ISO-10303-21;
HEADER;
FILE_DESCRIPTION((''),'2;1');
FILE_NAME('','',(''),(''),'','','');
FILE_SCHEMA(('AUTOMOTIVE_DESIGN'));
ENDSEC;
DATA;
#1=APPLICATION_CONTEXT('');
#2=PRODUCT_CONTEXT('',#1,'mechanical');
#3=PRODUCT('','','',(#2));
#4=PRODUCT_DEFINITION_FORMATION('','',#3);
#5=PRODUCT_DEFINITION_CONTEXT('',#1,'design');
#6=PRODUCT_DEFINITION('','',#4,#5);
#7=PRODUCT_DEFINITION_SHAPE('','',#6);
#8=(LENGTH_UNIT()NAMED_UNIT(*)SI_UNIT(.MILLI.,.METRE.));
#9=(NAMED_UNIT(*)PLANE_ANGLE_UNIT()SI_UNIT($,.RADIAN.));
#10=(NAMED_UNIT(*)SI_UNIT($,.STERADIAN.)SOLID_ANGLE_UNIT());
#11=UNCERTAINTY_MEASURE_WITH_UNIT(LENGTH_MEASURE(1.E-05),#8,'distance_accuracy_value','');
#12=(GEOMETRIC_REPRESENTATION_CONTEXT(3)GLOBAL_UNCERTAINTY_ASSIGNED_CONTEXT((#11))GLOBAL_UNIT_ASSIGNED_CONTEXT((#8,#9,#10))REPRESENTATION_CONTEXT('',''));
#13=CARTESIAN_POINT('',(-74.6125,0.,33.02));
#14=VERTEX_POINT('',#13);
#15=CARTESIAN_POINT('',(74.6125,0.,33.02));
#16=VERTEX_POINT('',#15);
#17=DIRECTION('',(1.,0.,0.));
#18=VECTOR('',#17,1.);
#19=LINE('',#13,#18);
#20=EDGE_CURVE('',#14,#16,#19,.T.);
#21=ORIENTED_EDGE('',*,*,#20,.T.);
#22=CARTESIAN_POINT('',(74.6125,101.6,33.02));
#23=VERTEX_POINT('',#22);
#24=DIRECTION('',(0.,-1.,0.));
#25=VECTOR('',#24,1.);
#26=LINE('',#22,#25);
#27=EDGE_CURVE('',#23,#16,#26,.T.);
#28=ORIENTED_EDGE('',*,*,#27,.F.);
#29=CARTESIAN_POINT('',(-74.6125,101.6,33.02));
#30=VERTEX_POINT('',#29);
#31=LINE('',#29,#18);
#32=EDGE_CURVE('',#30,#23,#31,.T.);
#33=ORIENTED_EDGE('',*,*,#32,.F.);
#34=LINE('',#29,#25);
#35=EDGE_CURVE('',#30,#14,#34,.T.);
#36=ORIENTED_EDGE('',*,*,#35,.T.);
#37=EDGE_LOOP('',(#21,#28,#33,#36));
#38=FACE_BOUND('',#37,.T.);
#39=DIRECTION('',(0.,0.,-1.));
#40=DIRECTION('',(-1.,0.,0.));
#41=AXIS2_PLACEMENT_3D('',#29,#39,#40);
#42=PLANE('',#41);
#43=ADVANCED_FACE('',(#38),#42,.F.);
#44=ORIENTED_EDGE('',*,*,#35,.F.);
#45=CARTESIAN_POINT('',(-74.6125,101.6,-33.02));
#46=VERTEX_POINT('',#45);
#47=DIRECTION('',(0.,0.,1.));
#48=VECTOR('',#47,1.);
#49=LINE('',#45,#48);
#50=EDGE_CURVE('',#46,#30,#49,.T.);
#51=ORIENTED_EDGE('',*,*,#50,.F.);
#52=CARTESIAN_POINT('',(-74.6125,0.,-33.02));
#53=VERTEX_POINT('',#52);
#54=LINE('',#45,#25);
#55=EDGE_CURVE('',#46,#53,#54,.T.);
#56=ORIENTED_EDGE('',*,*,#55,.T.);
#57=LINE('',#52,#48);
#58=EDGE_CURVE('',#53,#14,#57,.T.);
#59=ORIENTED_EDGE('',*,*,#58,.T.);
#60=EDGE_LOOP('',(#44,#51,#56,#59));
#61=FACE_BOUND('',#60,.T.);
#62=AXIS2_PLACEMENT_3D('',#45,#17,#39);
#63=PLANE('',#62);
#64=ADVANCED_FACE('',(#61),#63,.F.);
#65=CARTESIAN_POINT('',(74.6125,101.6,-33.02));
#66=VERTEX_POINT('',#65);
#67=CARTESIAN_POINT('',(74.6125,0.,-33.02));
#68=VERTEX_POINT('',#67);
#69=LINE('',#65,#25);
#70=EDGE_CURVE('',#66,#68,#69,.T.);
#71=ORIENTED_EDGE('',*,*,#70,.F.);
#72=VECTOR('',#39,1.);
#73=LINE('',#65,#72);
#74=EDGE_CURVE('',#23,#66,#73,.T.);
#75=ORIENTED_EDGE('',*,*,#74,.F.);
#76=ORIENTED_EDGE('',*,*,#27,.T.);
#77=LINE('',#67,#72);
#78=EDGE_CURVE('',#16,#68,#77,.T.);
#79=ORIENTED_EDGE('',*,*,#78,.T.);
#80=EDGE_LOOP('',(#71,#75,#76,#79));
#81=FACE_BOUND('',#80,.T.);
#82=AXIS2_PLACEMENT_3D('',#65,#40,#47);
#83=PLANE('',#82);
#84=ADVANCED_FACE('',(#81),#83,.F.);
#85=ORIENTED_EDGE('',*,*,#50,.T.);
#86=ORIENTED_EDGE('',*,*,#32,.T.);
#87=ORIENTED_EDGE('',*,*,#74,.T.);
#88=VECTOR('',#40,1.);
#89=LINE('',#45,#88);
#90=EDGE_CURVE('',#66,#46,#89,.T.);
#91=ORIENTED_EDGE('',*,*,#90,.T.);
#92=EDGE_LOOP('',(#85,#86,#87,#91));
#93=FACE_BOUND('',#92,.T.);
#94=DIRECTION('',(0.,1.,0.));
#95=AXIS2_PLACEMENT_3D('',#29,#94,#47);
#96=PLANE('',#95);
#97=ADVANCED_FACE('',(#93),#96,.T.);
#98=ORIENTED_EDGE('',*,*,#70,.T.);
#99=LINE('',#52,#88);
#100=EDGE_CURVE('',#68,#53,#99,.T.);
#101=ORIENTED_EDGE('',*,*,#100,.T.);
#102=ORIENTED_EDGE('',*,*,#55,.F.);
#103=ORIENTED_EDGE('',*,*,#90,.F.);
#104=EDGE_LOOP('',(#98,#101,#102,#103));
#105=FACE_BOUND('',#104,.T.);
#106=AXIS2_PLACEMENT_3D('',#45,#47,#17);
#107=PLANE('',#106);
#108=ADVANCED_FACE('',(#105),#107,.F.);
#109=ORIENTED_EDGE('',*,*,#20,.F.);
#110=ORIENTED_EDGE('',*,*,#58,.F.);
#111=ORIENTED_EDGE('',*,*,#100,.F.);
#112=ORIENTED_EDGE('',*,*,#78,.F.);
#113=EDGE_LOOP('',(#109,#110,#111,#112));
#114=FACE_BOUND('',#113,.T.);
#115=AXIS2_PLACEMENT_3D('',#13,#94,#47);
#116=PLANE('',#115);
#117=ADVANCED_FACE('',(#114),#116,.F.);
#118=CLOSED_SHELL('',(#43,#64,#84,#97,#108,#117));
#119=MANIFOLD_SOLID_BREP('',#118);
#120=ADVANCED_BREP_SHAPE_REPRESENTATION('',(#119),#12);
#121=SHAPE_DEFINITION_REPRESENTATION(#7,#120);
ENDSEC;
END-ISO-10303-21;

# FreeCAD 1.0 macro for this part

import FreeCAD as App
import Part
import Sketcher

V = App.Vector
Q = App.Units.Quantity

doc = App.newDocument("Part")
params = doc.addObject("Spreadsheet::Sheet", "Params")
for row, (alias, value) in enumerate([
    ("sketch1_height", "2.6 in"),
    ("sketch1_width", "5.875 in"),
    ("pad1_length", "4 in"),
], start=1):
    params.set(f"A{row}", alias)
    params.set(f"B{row}", "=" + value)
    params.setAlias(f"B{row}", alias)

body = doc.addObject("PartDesign::Body", "Body")

# Sketch on XZ plane
sketch1 = body.newObject("Sketcher::SketchObject", "Sketch")
sketch1.AttachmentSupport = (doc.getObject("XZ_Plane"), [""])
sketch1.MapMode = "FlatFace"
sketch1.addGeometry([
    Part.LineSegment(V(-74.6125, -33.02, 0), V(-74.6125, 33.02, 0)),
    Part.LineSegment(V(-74.6125, 33.02, 0), V(74.6125, 33.02, 0)),
    Part.LineSegment(V(74.6125, 33.02, 0), V(74.6125, -33.02, 0)),
    Part.LineSegment(V(74.6125, -33.02, 0), V(-74.6125, -33.02, 0)),
], False)
sketch1.addConstraint([
    Sketcher.Constraint("Coincident", 0, 2, 1, 1),
    Sketcher.Constraint("Coincident", 1, 2, 2, 1),
    Sketcher.Constraint("Coincident", 2, 2, 3, 1),
    Sketcher.Constraint("Coincident", 3, 2, 0, 1),
    Sketcher.Constraint("Vertical", 0),
    Sketcher.Constraint("Horizontal", 1),
    Sketcher.Constraint("Vertical", 2),
    Sketcher.Constraint("Horizontal", 3),
    Sketcher.Constraint("Symmetric", 0, 2, 2, 2, -1, 1),
    Sketcher.Constraint("DistanceY", 0, 1, 0, 2, Q("2.6 in")),
    Sketcher.Constraint("DistanceX", 1, 1, 1, 2, Q("5.875 in")),
])
sketch1.setExpression("Constraints[9]", "Params.sketch1_height")
sketch1.setExpression("Constraints[10]", "Params.sketch1_width")
pad1 = body.newObject("PartDesign::Pad", "Pad")
pad1.Profile = sketch1
pad1.setExpression("Length", "Params.pad1_length")
pad1.Reversed = True

doc.recompute()
